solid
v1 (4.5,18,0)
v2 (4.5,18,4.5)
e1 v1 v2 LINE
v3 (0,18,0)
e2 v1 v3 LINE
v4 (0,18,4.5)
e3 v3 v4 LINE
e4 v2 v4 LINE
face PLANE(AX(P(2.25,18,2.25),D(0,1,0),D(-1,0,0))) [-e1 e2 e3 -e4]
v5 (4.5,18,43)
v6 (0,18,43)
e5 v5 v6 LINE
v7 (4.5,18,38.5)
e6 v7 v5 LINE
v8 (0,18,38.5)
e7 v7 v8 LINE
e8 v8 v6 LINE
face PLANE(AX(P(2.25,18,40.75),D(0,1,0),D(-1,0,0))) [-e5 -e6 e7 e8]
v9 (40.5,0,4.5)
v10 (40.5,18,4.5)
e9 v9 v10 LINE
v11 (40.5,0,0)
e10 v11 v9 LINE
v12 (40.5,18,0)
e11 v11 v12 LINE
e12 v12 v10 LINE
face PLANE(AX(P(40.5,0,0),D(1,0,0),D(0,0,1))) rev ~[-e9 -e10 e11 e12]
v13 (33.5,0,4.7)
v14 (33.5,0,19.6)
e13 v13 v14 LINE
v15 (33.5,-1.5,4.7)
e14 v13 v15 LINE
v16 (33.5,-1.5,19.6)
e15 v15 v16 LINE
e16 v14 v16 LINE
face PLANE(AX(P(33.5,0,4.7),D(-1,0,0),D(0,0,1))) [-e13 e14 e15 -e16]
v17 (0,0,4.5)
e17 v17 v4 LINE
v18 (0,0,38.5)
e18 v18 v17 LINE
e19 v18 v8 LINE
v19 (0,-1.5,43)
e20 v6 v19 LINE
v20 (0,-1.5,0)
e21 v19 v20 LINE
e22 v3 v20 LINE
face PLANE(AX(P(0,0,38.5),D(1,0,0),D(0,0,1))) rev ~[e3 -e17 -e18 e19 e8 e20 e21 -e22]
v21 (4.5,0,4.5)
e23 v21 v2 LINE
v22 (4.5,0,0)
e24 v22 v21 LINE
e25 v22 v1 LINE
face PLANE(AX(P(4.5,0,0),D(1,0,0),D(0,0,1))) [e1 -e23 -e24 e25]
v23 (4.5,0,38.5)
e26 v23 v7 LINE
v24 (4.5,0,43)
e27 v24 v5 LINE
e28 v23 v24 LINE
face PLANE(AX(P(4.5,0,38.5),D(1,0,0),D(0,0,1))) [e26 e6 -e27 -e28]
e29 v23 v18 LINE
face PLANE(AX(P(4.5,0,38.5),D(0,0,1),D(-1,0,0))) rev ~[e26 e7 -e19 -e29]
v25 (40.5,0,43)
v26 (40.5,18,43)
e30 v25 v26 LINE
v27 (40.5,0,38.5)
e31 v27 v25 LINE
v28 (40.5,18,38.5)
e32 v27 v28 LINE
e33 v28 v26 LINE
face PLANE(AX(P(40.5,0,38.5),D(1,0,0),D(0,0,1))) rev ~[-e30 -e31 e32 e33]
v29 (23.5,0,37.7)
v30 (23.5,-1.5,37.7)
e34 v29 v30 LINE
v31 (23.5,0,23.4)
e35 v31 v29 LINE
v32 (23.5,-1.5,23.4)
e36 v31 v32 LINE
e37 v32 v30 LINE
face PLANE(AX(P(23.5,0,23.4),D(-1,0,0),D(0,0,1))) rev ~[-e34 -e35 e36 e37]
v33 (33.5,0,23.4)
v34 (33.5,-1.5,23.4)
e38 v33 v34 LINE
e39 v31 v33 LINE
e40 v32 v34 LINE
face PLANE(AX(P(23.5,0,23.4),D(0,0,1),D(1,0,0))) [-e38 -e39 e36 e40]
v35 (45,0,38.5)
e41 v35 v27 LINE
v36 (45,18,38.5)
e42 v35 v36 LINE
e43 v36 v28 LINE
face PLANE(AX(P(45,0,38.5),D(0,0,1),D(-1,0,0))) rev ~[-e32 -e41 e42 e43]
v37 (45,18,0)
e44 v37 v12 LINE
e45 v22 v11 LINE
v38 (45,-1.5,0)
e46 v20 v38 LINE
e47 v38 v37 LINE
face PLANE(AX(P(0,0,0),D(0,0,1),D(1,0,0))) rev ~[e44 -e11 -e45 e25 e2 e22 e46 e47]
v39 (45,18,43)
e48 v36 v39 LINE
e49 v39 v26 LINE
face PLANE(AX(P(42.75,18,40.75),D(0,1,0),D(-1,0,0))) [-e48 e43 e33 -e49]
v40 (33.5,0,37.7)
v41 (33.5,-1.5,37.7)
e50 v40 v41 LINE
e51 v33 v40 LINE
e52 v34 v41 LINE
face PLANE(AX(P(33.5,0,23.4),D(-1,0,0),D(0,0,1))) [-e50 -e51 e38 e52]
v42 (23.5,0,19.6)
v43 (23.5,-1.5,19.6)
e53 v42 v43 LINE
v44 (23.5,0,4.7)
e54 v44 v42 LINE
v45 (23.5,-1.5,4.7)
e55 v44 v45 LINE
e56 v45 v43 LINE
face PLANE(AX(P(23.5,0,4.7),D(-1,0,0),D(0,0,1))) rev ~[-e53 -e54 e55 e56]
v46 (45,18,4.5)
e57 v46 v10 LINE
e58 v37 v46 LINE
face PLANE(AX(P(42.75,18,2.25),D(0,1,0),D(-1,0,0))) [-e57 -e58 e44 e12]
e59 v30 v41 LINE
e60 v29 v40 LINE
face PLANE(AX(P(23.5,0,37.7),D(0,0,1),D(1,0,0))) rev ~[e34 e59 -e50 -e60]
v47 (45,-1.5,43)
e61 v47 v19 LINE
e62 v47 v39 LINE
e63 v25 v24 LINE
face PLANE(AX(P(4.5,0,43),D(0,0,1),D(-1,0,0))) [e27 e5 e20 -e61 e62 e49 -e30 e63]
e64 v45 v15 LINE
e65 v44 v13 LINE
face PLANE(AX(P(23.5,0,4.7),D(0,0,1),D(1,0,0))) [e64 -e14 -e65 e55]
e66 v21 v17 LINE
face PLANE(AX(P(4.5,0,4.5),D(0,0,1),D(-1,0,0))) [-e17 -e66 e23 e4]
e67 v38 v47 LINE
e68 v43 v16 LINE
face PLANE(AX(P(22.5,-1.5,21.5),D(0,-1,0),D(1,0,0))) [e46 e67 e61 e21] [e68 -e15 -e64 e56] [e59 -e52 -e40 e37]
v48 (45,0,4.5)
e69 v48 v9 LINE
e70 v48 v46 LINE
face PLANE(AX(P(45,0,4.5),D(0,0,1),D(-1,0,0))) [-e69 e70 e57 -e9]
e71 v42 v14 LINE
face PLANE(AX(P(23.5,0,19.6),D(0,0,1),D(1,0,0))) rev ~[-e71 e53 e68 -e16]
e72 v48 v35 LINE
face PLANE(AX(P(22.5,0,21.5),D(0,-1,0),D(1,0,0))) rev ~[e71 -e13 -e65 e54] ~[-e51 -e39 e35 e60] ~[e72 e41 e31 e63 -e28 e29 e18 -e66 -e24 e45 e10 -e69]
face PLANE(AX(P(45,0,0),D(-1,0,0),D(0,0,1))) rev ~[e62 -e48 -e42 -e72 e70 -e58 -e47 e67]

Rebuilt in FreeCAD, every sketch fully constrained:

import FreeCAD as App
import Part
import Sketcher


def add_polygon(sketch, points):
    """Adds a closed chain of lines whose ends are joined by coincident constraints."""
    first, n = sketch.GeometryCount, len(points)
    for a, b in zip(points, points[1:] + points[:1]):
        sketch.addGeometry(Part.LineSegment(App.Vector(*a, 0), App.Vector(*b, 0)), False)
    for i in range(n):
        sketch.addConstraint(Sketcher.Constraint("Coincident", first + i, 2, first + (i + 1) % n, 1))

doc = App.newDocument("Part")
body = doc.addObject("PartDesign::Body", "Body")

# Sketch on XZ plane
sketch1 = body.newObject("Sketcher::SketchObject", "Sketch")
sketch1.AttachmentSupport = (doc.getObject("XZ_Plane"), [""])
sketch1.MapMode = "FlatFace"
add_polygon(sketch1, [(0, 43), (0, 0), (45, 0), (45, 43)])  # lines 0-3
add_polygon(sketch1, [(34, 5), (24, 5), (24, 20), (34, 20)])  # lines 4-7
add_polygon(sketch1, [(34, 23), (24, 23), (24, 38), (34, 38)])  # lines 8-11
sketch1.addConstraint(Sketcher.Constraint("Vertical", 0))
sketch1.addConstraint(Sketcher.Constraint("Horizontal", 1))
sketch1.addConstraint(Sketcher.Constraint("Vertical", 2))
sketch1.addConstraint(Sketcher.Constraint("Horizontal", 3))
sketch1.addConstraint(Sketcher.Constraint("Horizontal", 4))
sketch1.addConstraint(Sketcher.Constraint("Vertical", 5))
sketch1.addConstraint(Sketcher.Constraint("Horizontal", 6))
sketch1.addConstraint(Sketcher.Constraint("Vertical", 7))
sketch1.addConstraint(Sketcher.Constraint("Horizontal", 8))
sketch1.addConstraint(Sketcher.Constraint("Vertical", 9))
sketch1.addConstraint(Sketcher.Constraint("Horizontal", 10))
sketch1.addConstraint(Sketcher.Constraint("Vertical", 11))
sketch1.addConstraint(Sketcher.Constraint("Coincident", 0, 2, -1, 1))
sketch1.addConstraint(Sketcher.Constraint("Vertical", 5, 2, 8, 2))
sketch1.addConstraint(Sketcher.Constraint("Vertical", 7, 2, 10, 2))
sketch1.addConstraint(Sketcher.Constraint("DistanceX", 1, 1, 1, 2, 45.0))
sketch1.addConstraint(Sketcher.Constraint("DistanceX", 4, 2, 4, 1, 10.0))
sketch1.addConstraint(Sketcher.Constraint("DistanceY", 0, 2, 0, 1, 43.0))
sketch1.addConstraint(Sketcher.Constraint("DistanceY", 5, 1, 5, 2, 14.9))
sketch1.addConstraint(Sketcher.Constraint("DistanceY", 9, 1, 9, 2, 14.3))
sketch1.addConstraint(Sketcher.Constraint("DistanceX", -1, 1, 4, 2, 23.5))
sketch1.addConstraint(Sketcher.Constraint("DistanceY", -1, 1, 4, 2, 4.7))
sketch1.addConstraint(Sketcher.Constraint("DistanceY", -1, 1, 8, 2, 23.4))
pad1 = body.newObject("PartDesign::Pad", "Pad")
pad1.Profile = sketch1
pad1.Length = 1.5

# Sketch on XZ plane
sketch2 = body.newObject("Sketcher::SketchObject", "Sketch001")
sketch2.AttachmentSupport = (doc.getObject("XZ_Plane"), [""])
sketch2.MapMode = "FlatFace"
add_polygon(sketch2, [(4.5, 43), (4.5, 38.5), (0, 38.5), (0, 43)])  # lines 0-3
add_polygon(sketch2, [(4.5, 4.5), (4.5, 0), (0, 0), (0, 4.5)])  # lines 4-7
add_polygon(sketch2, [(45, 4.5), (45, 0), (40.5, 0), (40.5, 4.5)])  # lines 8-11
add_polygon(sketch2, [(45, 43), (45, 38.5), (40.5, 38.5), (40.5, 43)])  # lines 12-15
sketch2.addConstraint(Sketcher.Constraint("Vertical", 0))
sketch2.addConstraint(Sketcher.Constraint("Horizontal", 1))
sketch2.addConstraint(Sketcher.Constraint("Vertical", 2))
sketch2.addConstraint(Sketcher.Constraint("Horizontal", 3))
sketch2.addConstraint(Sketcher.Constraint("Vertical", 4))
sketch2.addConstraint(Sketcher.Constraint("Horizontal", 5))
sketch2.addConstraint(Sketcher.Constraint("Vertical", 6))
sketch2.addConstraint(Sketcher.Constraint("Horizontal", 7))
sketch2.addConstraint(Sketcher.Constraint("Vertical", 8))
sketch2.addConstraint(Sketcher.Constraint("Horizontal", 9))
sketch2.addConstraint(Sketcher.Constraint("Vertical", 10))
sketch2.addConstraint(Sketcher.Constraint("Horizontal", 11))
sketch2.addConstraint(Sketcher.Constraint("Vertical", 12))
sketch2.addConstraint(Sketcher.Constraint("Horizontal", 13))
sketch2.addConstraint(Sketcher.Constraint("Vertical", 14))
sketch2.addConstraint(Sketcher.Constraint("Horizontal", 15))
sketch2.addConstraint(Sketcher.Constraint("Coincident", 5, 2, -1, 1))
sketch2.addConstraint(Sketcher.Constraint("PointOnObject", 1, 2, -2))
sketch2.addConstraint(Sketcher.Constraint("PointOnObject", 8, 2, -1))
sketch2.addConstraint(Sketcher.Constraint("Horizontal", 7, 2, 10, 2))
sketch2.addConstraint(Sketcher.Constraint("Horizontal", 1, 2, 12, 2))
sketch2.addConstraint(Sketcher.Constraint("Horizontal", 3, 2, 14, 2))
sketch2.addConstraint(Sketcher.Constraint("Vertical", 3, 2, 4, 2))
sketch2.addConstraint(Sketcher.Constraint("Vertical", 11, 2, 12, 2))
sketch2.addConstraint(Sketcher.Constraint("Vertical", 10, 2, 13, 2))
sketch2.addConstraint(Sketcher.Constraint("Equal", 7, 9))
sketch2.addConstraint(Sketcher.Constraint("Equal", 15, 0))
sketch2.addConstraint(Sketcher.Constraint("Equal", 2, 4))
sketch2.addConstraint(Sketcher.Constraint("DistanceX", 1, 2, 1, 1, 4.5))
sketch2.addConstraint(Sketcher.Constraint("DistanceY", -1, 1, 2, 2, 43.0))
sketch2.addConstraint(Sketcher.Constraint("DistanceX", -1, 1, 8, 2, 45.0))
pad2 = body.newObject("PartDesign::Pad", "Pad001")
pad2.Profile = sketch2
pad2.Length = 18
pad2.Reversed = True

doc.recompute()
